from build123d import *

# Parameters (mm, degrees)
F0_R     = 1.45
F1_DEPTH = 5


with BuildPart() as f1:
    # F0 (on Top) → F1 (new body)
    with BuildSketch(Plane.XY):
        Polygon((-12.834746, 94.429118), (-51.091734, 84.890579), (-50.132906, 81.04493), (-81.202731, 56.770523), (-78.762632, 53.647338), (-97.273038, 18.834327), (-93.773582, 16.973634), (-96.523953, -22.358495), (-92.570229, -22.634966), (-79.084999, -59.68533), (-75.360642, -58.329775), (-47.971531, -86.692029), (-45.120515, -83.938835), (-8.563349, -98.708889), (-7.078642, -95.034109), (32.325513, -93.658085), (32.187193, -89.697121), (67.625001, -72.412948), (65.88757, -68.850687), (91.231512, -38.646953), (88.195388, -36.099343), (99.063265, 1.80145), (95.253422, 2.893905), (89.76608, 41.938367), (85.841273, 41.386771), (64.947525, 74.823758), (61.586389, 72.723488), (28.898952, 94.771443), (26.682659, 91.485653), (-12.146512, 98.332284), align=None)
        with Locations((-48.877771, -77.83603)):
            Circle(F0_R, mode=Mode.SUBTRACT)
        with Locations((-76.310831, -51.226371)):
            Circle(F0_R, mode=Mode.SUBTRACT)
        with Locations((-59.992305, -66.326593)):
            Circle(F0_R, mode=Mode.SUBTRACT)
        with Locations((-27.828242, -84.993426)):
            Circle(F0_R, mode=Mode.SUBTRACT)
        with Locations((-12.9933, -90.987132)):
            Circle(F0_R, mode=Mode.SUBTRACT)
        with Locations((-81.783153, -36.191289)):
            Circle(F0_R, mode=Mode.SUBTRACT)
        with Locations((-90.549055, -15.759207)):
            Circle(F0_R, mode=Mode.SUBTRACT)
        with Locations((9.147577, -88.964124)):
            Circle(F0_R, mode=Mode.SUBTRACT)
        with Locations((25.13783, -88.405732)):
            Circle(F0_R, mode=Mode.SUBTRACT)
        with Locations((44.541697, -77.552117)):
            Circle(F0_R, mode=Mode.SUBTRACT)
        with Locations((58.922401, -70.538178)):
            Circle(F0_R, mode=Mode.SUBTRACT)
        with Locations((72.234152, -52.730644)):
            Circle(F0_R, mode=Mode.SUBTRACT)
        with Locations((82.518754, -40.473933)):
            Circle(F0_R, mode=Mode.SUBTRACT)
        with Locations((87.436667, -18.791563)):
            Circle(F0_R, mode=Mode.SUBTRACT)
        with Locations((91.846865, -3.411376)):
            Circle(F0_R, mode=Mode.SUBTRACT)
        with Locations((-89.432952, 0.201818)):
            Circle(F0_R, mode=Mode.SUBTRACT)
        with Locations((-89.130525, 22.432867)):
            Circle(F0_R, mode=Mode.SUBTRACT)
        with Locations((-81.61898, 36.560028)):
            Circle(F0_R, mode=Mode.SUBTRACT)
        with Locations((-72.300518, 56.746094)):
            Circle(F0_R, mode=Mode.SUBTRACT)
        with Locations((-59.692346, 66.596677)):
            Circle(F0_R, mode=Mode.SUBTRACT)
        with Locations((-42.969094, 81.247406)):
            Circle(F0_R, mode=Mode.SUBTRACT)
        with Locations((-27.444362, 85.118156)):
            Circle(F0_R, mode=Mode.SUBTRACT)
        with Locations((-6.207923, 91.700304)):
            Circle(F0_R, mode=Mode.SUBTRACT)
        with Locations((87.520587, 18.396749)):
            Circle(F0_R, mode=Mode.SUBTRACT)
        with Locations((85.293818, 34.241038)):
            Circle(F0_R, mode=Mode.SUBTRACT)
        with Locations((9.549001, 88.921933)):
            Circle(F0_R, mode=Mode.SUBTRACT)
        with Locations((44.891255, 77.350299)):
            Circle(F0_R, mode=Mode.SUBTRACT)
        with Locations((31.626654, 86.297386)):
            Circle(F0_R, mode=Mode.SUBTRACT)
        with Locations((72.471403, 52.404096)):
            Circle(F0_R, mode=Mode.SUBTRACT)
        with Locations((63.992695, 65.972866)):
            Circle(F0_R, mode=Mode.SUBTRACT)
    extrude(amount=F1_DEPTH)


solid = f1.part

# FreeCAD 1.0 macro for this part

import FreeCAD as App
import Part
import Sketcher

V = App.Vector
Q = App.Units.Quantity


def add_polygon(sketch, points):
    """Adds a closed chain of lines whose ends are joined by coincident constraints."""
    first, n = sketch.GeometryCount, len(points)
    for a, b in zip(points, points[1:] + points[:1]):
        sketch.addGeometry(Part.LineSegment(App.Vector(*a, 0), App.Vector(*b, 0)), False)
    for i in range(n):
        sketch.addConstraint(Sketcher.Constraint("Coincident", first + i, 2, first + (i + 1) % n, 1))

doc = App.newDocument("Part")
body = doc.addObject("PartDesign::Body", "Body")

# Sketch on XY plane
sketch1 = doc.addObject("Sketcher::SketchObject", "Sketch")
body.addObject(sketch1)
sketch1.AttachmentSupport = (doc.XY_Plane, [""])
sketch1.MapMode = "FlatFace"
add_polygon(sketch1, [(-12.834746, 94.429118), (-51.091734, 84.890579), (-50.132906, 81.04493), (-81.202731, 56.770523), (-78.762632, 53.647338), (-97.273038, 18.834327), (-93.773582, 16.973634), (-96.523953, -22.358495), (-92.570229, -22.634966), (-79.084999, -59.68533), (-75.360642, -58.329775), (-47.971531, -86.692029), (-45.120515, -83.938835), (-8.563349, -98.708889), (-7.078642, -95.034109), (32.325513, -93.658085), (32.187193, -89.697121), (67.625001, -72.412948), (65.88757, -68.850687), (91.231512, -38.646953), (88.195388, -36.099343), (99.063265, 1.80145), (95.253422, 2.893905), (89.76608, 41.938367), (85.841273, 41.386771), (64.947525, 74.823758), (61.586389, 72.723488), (28.898952, 94.771443), (26.682659, 91.485653), (-12.146512, 98.332284)])  # lines 0-29
sketch1.addGeometry(Part.Circle(V(-48.877771, -77.83603, 0), V(0, 0, 1), 1.45), False)  # 30
sketch1.addGeometry(Part.Circle(V(-76.310831, -51.226371, 0), V(0, 0, 1), 1.45), False)  # 31
sketch1.addGeometry(Part.Circle(V(-59.992305, -66.326593, 0), V(0, 0, 1), 1.45), False)  # 32
sketch1.addGeometry(Part.Circle(V(-27.828242, -84.993426, 0), V(0, 0, 1), 1.45), False)  # 33
sketch1.addGeometry(Part.Circle(V(-12.9933, -90.987132, 0), V(0, 0, 1), 1.45), False)  # 34
sketch1.addGeometry(Part.Circle(V(-81.783153, -36.191289, 0), V(0, 0, 1), 1.45), False)  # 35
sketch1.addGeometry(Part.Circle(V(-90.549055, -15.759207, 0), V(0, 0, 1), 1.45), False)  # 36
sketch1.addGeometry(Part.Circle(V(-89.432952, 0.201818, 0), V(0, 0, 1), 1.45), False)  # 37
sketch1.addGeometry(Part.Circle(V(9.147577, -88.964124, 0), V(0, 0, 1), 1.45), False)  # 38
sketch1.addGeometry(Part.Circle(V(25.13783, -88.405732, 0), V(0, 0, 1), 1.45), False)  # 39
sketch1.addGeometry(Part.Circle(V(44.541697, -77.552117, 0), V(0, 0, 1), 1.45), False)  # 40
sketch1.addGeometry(Part.Circle(V(58.922401, -70.538178, 0), V(0, 0, 1), 1.45), False)  # 41
sketch1.addGeometry(Part.Circle(V(72.234152, -52.730644, 0), V(0, 0, 1), 1.45), False)  # 42
sketch1.addGeometry(Part.Circle(V(82.518754, -40.473933, 0), V(0, 0, 1), 1.45), False)  # 43
sketch1.addGeometry(Part.Circle(V(87.436667, -18.791563, 0), V(0, 0, 1), 1.45), False)  # 44
sketch1.addGeometry(Part.Circle(V(91.846865, -3.411376, 0), V(0, 0, 1), 1.45), False)  # 45
sketch1.addGeometry(Part.Circle(V(-89.130525, 22.432867, 0), V(0, 0, 1), 1.45), False)  # 46
sketch1.addGeometry(Part.Circle(V(-81.61898, 36.560028, 0), V(0, 0, 1), 1.45), False)  # 47
sketch1.addGeometry(Part.Circle(V(-72.300518, 56.746094, 0), V(0, 0, 1), 1.45), False)  # 48
sketch1.addGeometry(Part.Circle(V(-59.692346, 66.596677, 0), V(0, 0, 1), 1.45), False)  # 49
sketch1.addGeometry(Part.Circle(V(-42.969094, 81.247406, 0), V(0, 0, 1), 1.45), False)  # 50
sketch1.addGeometry(Part.Circle(V(-27.444362, 85.118156, 0), V(0, 0, 1), 1.45), False)  # 51
sketch1.addGeometry(Part.Circle(V(-6.207923, 91.700304, 0), V(0, 0, 1), 1.45), False)  # 52
sketch1.addGeometry(Part.Circle(V(87.520587, 18.396749, 0), V(0, 0, 1), 1.45), False)  # 53
sketch1.addGeometry(Part.Circle(V(85.293818, 34.241038, 0), V(0, 0, 1), 1.45), False)  # 54
sketch1.addGeometry(Part.Circle(V(9.549001, 88.921933, 0), V(0, 0, 1), 1.45), False)  # 55
sketch1.addGeometry(Part.Circle(V(44.891255, 77.350299, 0), V(0, 0, 1), 1.45), False)  # 56
sketch1.addGeometry(Part.Circle(V(31.626654, 86.297386, 0), V(0, 0, 1), 1.45), False)  # 57
sketch1.addGeometry(Part.Circle(V(63.992695, 65.972866, 0), V(0, 0, 1), 1.45), False)  # 58
sketch1.addGeometry(Part.Circle(V(72.471403, 52.404096, 0), V(0, 0, 1), 1.45), False)  # 59
sketch1.addConstraint([
    Sketcher.Constraint("Equal", 30, 31),
    Sketcher.Constraint("Equal", 31, 32),
    Sketcher.Constraint("Equal", 32, 33),
    Sketcher.Constraint("Equal", 33, 34),
    Sketcher.Constraint("Equal", 34, 35),
    Sketcher.Constraint("Equal", 35, 36),
    Sketcher.Constraint("Equal", 36, 37),
    Sketcher.Constraint("Equal", 37, 38),
    Sketcher.Constraint("Equal", 38, 39),
    Sketcher.Constraint("Equal", 39, 40),
    Sketcher.Constraint("Equal", 40, 41),
    Sketcher.Constraint("Equal", 41, 42),
    Sketcher.Constraint("Equal", 42, 43),
    Sketcher.Constraint("Equal", 43, 44),
    Sketcher.Constraint("Equal", 44, 45),
    Sketcher.Constraint("Equal", 45, 46),
    Sketcher.Constraint("Equal", 46, 47),
    Sketcher.Constraint("Equal", 47, 48),
    Sketcher.Constraint("Equal", 48, 49),
    Sketcher.Constraint("Equal", 49, 50),
    Sketcher.Constraint("Equal", 50, 51),
    Sketcher.Constraint("Equal", 51, 52),
    Sketcher.Constraint("Equal", 52, 53),
    Sketcher.Constraint("Equal", 53, 54),
    Sketcher.Constraint("Equal", 54, 55),
    Sketcher.Constraint("Equal", 55, 56),
    Sketcher.Constraint("Equal", 56, 57),
    Sketcher.Constraint("Equal", 57, 58),
    Sketcher.Constraint("Equal", 58, 59),
    Sketcher.Constraint("Perpendicular", 0, 1),
    Sketcher.Constraint("Perpendicular", 2, 3),
    Sketcher.Constraint("Perpendicular", 4, 5),
    Sketcher.Constraint("Perpendicular", 6, 7),
    Sketcher.Constraint("Perpendicular", 8, 9),
    Sketcher.Constraint("Perpendicular", 10, 11),
    Sketcher.Constraint("Perpendicular", 12, 13),
    Sketcher.Constraint("Perpendicular", 14, 15),
    Sketcher.Constraint("Perpendicular", 16, 17),
    Sketcher.Constraint("Perpendicular", 18, 19),
    Sketcher.Constraint("Perpendicular", 20, 21),
    Sketcher.Constraint("Perpendicular", 22, 23),
    Sketcher.Constraint("Perpendicular", 24, 25),
    Sketcher.Constraint("Perpendicular", 26, 27),
    Sketcher.Constraint("Perpendicular", 28, 29),
    Sketcher.Constraint("Equal", 0, 2),
    Sketcher.Constraint("Equal", 1, 3),
    Sketcher.Constraint("Equal", 2, 4),
    Sketcher.Constraint("Equal", 3, 5),
    Sketcher.Constraint("Equal", 4, 6),
    Sketcher.Constraint("Equal", 5, 7),
    Sketcher.Constraint("Equal", 6, 8),
    Sketcher.Constraint("Equal", 7, 9),
    Sketcher.Constraint("Equal", 8, 10),
    Sketcher.Constraint("Equal", 9, 11),
    Sketcher.Constraint("Equal", 10, 12),
    Sketcher.Constraint("Equal", 11, 13),
    Sketcher.Constraint("Equal", 12, 14),
    Sketcher.Constraint("Equal", 13, 15),
    Sketcher.Constraint("Equal", 14, 16),
    Sketcher.Constraint("Equal", 15, 17),
    Sketcher.Constraint("Equal", 16, 18),
    Sketcher.Constraint("Equal", 17, 19),
    Sketcher.Constraint("Equal", 18, 20),
    Sketcher.Constraint("Equal", 19, 21),
    Sketcher.Constraint("Equal", 20, 22),
    Sketcher.Constraint("Equal", 21, 23),
    Sketcher.Constraint("Equal", 22, 24),
    Sketcher.Constraint("Equal", 23, 25),
    Sketcher.Constraint("Equal", 24, 26),
    Sketcher.Constraint("Equal", 25, 27),
    Sketcher.Constraint("Equal", 26, 28),
    Sketcher.Constraint("Equal", 27, 29),
    Sketcher.Constraint("Diameter", 30, Q("2.9 mm")),
    Sketcher.Constraint("Angle", 0, Q("-165.999999 deg")),
    Sketcher.Constraint("Angle", 2, Q("-142.000001 deg")),
    Sketcher.Constraint("Angle", 4, Q("-118 deg")),
    Sketcher.Constraint("Angle", 6, Q("-94.000001 deg")),
    Sketcher.Constraint("Angle", 8, Q("-70 deg")),
    Sketcher.Constraint("Angle", 10, Q("-45.999999 deg")),
    Sketcher.Constraint("Angle", 12, Q("-22 deg")),
    Sketcher.Constraint("Angle", 14, Q("2.000001 deg")),
    Sketcher.Constraint("Angle", 16, Q("25.999999 deg")),
    Sketcher.Constraint("Angle", 18, Q("50 deg")),
    Sketcher.Constraint("Angle", 20, Q("74.000001 deg")),
    Sketcher.Constraint("Angle", 22, Q("98.000001 deg")),
    Sketcher.Constraint("Angle", 24, Q("122 deg")),
    Sketcher.Constraint("DistanceX", -1, 1, 55, 3, Q("9.549001 mm")),
    Sketcher.Constraint("DistanceX", 8, 2, -1, 1, Q("79.084999 mm")),
    Sketcher.Constraint("DistanceX", -1, 1, 16, 2, Q("67.625001 mm")),
    Sketcher.Constraint("DistanceX", 6, 2, 37, 3, Q("7.091001 mm")),
    Sketcher.Constraint("DistanceY", 10, 2, 30, 3, Q("8.855999 mm")),
    Sketcher.Constraint("DistanceX", 34, 3, -1, 1, Q("12.9933 mm")),
    Sketcher.Constraint("DistanceX", -1, 1, 41, 3, Q("58.922401 mm")),
    Sketcher.Constraint("DistanceY", -1, 1, 56, 3, Q("77.350299 mm")),
    Sketcher.Constraint("DistanceX", 36, 3, 35, 3, Q("8.765902 mm")),
    Sketcher.Constraint("DistanceX", 37, 3, 35, 3, Q("7.649799 mm")),
    Sketcher.Constraint("DistanceY", 34, 3, 39, 3, Q("2.5814 mm")),
    Sketcher.Constraint("DistanceX", 30, 3, 39, 3, Q("74.015601 mm")),
    Sketcher.Constraint("DistanceY", 39, 3, 43, 3, Q("47.931799 mm")),
    Sketcher.Constraint("DistanceY", 41, 3, 45, 3, Q("67.126802 mm")),
    Sketcher.Constraint("DistanceY", 31, 3, 47, 3, Q("87.786399 mm")),
    Sketcher.Constraint("DistanceY", 36, 3, 48, 3, Q("72.505301 mm")),
    Sketcher.Constraint("DistanceY", 50, 3, 52, 3, Q("10.452898 mm")),
    Sketcher.Constraint("DistanceY", 44, 3, 54, 3, Q("53.032601 mm")),
    Sketcher.Constraint("DistanceX", 57, 3, 56, 3, Q("13.264601 mm")),
    Sketcher.Constraint("DistanceX", 2, 2, 3, 2, Q("2.440099 mm")),
    Sketcher.Constraint("DistanceY", 4, 2, 47, 3, Q("17.725701 mm")),
    Sketcher.Constraint("DistanceX", 7, 2, 31, 3, Q("16.259398 mm")),
    Sketcher.Constraint("DistanceX", 33, 3, 13, 2, Q("20.7496 mm")),
    Sketcher.Constraint("DistanceY", 42, 3, 19, 2, Q("16.631301 mm")),
    Sketcher.Constraint("DistanceX", 45, 3, 20, 2, Q("7.2164 mm")),
    Sketcher.Constraint("DistanceY", 20, 2, 53, 3, Q("16.595299 mm")),
    Sketcher.Constraint("DistanceX", 44, 3, 20, 2, Q("11.626598 mm")),
    Sketcher.Constraint("DistanceY", 22, 2, 58, 3, Q("24.034499 mm")),
    Sketcher.Constraint("DistanceX", 26, 2, 57, 3, Q("2.727702 mm")),
    Sketcher.Constraint("DistanceX", 30, 3, -1, 1, Q("48.877771 mm")),
    Sketcher.Constraint("DistanceY", 30, 3, -1, 1, Q("77.83603 mm")),
    Sketcher.Constraint("DistanceY", 35, 3, -1, 1, Q("36.191289 mm")),
    Sketcher.Constraint("DistanceY", 39, 3, -1, 1, Q("88.405732 mm")),
    Sketcher.Constraint("DistanceY", 41, 3, -1, 1, Q("70.538178 mm")),
    Sketcher.Constraint("DistanceX", -1, 1, 42, 3, Q("72.234152 mm")),
    Sketcher.Constraint("DistanceX", 47, 3, -1, 1, Q("81.61898 mm")),
    Sketcher.Constraint("DistanceX", -1, 1, 54, 3, Q("85.293818 mm")),
    Sketcher.Constraint("DistanceY", -1, 1, 54, 3, Q("34.241038 mm")),
    Sketcher.Constraint("DistanceY", 34, 3, 32, 3, Q("24.660539 mm")),
    Sketcher.Constraint("DistanceY", 35, 3, 36, 3, Q("20.432082 mm")),
    Sketcher.Constraint("DistanceX", 36, 3, 32, 3, Q("30.55675 mm")),
    Sketcher.Constraint("DistanceY", 33, 3, 36, 3, Q("69.234219 mm")),
    Sketcher.Constraint("DistanceY", 31, 3, 37, 3, Q("51.428189 mm")),
    Sketcher.Constraint("DistanceY", 34, 3, 38, 3, Q("2.023008 mm")),
    Sketcher.Constraint("DistanceX", 33, 3, 38, 3, Q("36.975819 mm")),
    Sketcher.Constraint("DistanceX", 38, 3, 40, 3, Q("35.39412 mm")),
    Sketcher.Constraint("DistanceY", 33, 3, 40, 3, Q("7.441309 mm")),
    Sketcher.Constraint("DistanceX", 43, 3, 45, 3, Q("9.328111 mm")),
    Sketcher.Constraint("DistanceY", 37, 3, 46, 3, Q("22.231049 mm")),
    Sketcher.Constraint("DistanceX", 36, 3, 46, 3, Q("1.41853 mm")),
    Sketcher.Constraint("DistanceX", 47, 3, 48, 3, Q("9.318462 mm")),
    Sketcher.Constraint("DistanceX", 48, 3, 49, 3, Q("12.608172 mm")),
    Sketcher.Constraint("DistanceY", 47, 3, 49, 3, Q("30.036649 mm")),
    Sketcher.Constraint("DistanceY", 49, 3, 50, 3, Q("14.650729 mm")),
    Sketcher.Constraint("DistanceX", 46, 3, 50, 3, Q("46.161431 mm")),
    Sketcher.Constraint("DistanceX", 50, 3, 51, 3, Q("15.524732 mm")),
    Sketcher.Constraint("DistanceY", 50, 3, 51, 3, Q("3.87075 mm")),
    Sketcher.Constraint("DistanceX", 51, 3, 52, 3, Q("21.236439 mm")),
    Sketcher.Constraint("DistanceX", 44, 3, 53, 3, Q("0.08392 mm")),
    Sketcher.Constraint("DistanceY", 55, 3, 52, 3, Q("2.778371 mm")),
    Sketcher.Constraint("DistanceY", 51, 3, 57, 3, Q("1.17923 mm")),
    Sketcher.Constraint("DistanceX", 56, 3, 58, 3, Q("19.10144 mm")),
    Sketcher.Constraint("DistanceY", 59, 3, 58, 3, Q("13.56877 mm")),
    Sketcher.Constraint("DistanceX", 57, 3, 59, 3, Q("40.844749 mm")),
])
pad1 = doc.addObject("PartDesign::Pad", "Pad")
body.addObject(pad1)
pad1.Profile = sketch1
pad1.Length = 5

doc.recompute()
